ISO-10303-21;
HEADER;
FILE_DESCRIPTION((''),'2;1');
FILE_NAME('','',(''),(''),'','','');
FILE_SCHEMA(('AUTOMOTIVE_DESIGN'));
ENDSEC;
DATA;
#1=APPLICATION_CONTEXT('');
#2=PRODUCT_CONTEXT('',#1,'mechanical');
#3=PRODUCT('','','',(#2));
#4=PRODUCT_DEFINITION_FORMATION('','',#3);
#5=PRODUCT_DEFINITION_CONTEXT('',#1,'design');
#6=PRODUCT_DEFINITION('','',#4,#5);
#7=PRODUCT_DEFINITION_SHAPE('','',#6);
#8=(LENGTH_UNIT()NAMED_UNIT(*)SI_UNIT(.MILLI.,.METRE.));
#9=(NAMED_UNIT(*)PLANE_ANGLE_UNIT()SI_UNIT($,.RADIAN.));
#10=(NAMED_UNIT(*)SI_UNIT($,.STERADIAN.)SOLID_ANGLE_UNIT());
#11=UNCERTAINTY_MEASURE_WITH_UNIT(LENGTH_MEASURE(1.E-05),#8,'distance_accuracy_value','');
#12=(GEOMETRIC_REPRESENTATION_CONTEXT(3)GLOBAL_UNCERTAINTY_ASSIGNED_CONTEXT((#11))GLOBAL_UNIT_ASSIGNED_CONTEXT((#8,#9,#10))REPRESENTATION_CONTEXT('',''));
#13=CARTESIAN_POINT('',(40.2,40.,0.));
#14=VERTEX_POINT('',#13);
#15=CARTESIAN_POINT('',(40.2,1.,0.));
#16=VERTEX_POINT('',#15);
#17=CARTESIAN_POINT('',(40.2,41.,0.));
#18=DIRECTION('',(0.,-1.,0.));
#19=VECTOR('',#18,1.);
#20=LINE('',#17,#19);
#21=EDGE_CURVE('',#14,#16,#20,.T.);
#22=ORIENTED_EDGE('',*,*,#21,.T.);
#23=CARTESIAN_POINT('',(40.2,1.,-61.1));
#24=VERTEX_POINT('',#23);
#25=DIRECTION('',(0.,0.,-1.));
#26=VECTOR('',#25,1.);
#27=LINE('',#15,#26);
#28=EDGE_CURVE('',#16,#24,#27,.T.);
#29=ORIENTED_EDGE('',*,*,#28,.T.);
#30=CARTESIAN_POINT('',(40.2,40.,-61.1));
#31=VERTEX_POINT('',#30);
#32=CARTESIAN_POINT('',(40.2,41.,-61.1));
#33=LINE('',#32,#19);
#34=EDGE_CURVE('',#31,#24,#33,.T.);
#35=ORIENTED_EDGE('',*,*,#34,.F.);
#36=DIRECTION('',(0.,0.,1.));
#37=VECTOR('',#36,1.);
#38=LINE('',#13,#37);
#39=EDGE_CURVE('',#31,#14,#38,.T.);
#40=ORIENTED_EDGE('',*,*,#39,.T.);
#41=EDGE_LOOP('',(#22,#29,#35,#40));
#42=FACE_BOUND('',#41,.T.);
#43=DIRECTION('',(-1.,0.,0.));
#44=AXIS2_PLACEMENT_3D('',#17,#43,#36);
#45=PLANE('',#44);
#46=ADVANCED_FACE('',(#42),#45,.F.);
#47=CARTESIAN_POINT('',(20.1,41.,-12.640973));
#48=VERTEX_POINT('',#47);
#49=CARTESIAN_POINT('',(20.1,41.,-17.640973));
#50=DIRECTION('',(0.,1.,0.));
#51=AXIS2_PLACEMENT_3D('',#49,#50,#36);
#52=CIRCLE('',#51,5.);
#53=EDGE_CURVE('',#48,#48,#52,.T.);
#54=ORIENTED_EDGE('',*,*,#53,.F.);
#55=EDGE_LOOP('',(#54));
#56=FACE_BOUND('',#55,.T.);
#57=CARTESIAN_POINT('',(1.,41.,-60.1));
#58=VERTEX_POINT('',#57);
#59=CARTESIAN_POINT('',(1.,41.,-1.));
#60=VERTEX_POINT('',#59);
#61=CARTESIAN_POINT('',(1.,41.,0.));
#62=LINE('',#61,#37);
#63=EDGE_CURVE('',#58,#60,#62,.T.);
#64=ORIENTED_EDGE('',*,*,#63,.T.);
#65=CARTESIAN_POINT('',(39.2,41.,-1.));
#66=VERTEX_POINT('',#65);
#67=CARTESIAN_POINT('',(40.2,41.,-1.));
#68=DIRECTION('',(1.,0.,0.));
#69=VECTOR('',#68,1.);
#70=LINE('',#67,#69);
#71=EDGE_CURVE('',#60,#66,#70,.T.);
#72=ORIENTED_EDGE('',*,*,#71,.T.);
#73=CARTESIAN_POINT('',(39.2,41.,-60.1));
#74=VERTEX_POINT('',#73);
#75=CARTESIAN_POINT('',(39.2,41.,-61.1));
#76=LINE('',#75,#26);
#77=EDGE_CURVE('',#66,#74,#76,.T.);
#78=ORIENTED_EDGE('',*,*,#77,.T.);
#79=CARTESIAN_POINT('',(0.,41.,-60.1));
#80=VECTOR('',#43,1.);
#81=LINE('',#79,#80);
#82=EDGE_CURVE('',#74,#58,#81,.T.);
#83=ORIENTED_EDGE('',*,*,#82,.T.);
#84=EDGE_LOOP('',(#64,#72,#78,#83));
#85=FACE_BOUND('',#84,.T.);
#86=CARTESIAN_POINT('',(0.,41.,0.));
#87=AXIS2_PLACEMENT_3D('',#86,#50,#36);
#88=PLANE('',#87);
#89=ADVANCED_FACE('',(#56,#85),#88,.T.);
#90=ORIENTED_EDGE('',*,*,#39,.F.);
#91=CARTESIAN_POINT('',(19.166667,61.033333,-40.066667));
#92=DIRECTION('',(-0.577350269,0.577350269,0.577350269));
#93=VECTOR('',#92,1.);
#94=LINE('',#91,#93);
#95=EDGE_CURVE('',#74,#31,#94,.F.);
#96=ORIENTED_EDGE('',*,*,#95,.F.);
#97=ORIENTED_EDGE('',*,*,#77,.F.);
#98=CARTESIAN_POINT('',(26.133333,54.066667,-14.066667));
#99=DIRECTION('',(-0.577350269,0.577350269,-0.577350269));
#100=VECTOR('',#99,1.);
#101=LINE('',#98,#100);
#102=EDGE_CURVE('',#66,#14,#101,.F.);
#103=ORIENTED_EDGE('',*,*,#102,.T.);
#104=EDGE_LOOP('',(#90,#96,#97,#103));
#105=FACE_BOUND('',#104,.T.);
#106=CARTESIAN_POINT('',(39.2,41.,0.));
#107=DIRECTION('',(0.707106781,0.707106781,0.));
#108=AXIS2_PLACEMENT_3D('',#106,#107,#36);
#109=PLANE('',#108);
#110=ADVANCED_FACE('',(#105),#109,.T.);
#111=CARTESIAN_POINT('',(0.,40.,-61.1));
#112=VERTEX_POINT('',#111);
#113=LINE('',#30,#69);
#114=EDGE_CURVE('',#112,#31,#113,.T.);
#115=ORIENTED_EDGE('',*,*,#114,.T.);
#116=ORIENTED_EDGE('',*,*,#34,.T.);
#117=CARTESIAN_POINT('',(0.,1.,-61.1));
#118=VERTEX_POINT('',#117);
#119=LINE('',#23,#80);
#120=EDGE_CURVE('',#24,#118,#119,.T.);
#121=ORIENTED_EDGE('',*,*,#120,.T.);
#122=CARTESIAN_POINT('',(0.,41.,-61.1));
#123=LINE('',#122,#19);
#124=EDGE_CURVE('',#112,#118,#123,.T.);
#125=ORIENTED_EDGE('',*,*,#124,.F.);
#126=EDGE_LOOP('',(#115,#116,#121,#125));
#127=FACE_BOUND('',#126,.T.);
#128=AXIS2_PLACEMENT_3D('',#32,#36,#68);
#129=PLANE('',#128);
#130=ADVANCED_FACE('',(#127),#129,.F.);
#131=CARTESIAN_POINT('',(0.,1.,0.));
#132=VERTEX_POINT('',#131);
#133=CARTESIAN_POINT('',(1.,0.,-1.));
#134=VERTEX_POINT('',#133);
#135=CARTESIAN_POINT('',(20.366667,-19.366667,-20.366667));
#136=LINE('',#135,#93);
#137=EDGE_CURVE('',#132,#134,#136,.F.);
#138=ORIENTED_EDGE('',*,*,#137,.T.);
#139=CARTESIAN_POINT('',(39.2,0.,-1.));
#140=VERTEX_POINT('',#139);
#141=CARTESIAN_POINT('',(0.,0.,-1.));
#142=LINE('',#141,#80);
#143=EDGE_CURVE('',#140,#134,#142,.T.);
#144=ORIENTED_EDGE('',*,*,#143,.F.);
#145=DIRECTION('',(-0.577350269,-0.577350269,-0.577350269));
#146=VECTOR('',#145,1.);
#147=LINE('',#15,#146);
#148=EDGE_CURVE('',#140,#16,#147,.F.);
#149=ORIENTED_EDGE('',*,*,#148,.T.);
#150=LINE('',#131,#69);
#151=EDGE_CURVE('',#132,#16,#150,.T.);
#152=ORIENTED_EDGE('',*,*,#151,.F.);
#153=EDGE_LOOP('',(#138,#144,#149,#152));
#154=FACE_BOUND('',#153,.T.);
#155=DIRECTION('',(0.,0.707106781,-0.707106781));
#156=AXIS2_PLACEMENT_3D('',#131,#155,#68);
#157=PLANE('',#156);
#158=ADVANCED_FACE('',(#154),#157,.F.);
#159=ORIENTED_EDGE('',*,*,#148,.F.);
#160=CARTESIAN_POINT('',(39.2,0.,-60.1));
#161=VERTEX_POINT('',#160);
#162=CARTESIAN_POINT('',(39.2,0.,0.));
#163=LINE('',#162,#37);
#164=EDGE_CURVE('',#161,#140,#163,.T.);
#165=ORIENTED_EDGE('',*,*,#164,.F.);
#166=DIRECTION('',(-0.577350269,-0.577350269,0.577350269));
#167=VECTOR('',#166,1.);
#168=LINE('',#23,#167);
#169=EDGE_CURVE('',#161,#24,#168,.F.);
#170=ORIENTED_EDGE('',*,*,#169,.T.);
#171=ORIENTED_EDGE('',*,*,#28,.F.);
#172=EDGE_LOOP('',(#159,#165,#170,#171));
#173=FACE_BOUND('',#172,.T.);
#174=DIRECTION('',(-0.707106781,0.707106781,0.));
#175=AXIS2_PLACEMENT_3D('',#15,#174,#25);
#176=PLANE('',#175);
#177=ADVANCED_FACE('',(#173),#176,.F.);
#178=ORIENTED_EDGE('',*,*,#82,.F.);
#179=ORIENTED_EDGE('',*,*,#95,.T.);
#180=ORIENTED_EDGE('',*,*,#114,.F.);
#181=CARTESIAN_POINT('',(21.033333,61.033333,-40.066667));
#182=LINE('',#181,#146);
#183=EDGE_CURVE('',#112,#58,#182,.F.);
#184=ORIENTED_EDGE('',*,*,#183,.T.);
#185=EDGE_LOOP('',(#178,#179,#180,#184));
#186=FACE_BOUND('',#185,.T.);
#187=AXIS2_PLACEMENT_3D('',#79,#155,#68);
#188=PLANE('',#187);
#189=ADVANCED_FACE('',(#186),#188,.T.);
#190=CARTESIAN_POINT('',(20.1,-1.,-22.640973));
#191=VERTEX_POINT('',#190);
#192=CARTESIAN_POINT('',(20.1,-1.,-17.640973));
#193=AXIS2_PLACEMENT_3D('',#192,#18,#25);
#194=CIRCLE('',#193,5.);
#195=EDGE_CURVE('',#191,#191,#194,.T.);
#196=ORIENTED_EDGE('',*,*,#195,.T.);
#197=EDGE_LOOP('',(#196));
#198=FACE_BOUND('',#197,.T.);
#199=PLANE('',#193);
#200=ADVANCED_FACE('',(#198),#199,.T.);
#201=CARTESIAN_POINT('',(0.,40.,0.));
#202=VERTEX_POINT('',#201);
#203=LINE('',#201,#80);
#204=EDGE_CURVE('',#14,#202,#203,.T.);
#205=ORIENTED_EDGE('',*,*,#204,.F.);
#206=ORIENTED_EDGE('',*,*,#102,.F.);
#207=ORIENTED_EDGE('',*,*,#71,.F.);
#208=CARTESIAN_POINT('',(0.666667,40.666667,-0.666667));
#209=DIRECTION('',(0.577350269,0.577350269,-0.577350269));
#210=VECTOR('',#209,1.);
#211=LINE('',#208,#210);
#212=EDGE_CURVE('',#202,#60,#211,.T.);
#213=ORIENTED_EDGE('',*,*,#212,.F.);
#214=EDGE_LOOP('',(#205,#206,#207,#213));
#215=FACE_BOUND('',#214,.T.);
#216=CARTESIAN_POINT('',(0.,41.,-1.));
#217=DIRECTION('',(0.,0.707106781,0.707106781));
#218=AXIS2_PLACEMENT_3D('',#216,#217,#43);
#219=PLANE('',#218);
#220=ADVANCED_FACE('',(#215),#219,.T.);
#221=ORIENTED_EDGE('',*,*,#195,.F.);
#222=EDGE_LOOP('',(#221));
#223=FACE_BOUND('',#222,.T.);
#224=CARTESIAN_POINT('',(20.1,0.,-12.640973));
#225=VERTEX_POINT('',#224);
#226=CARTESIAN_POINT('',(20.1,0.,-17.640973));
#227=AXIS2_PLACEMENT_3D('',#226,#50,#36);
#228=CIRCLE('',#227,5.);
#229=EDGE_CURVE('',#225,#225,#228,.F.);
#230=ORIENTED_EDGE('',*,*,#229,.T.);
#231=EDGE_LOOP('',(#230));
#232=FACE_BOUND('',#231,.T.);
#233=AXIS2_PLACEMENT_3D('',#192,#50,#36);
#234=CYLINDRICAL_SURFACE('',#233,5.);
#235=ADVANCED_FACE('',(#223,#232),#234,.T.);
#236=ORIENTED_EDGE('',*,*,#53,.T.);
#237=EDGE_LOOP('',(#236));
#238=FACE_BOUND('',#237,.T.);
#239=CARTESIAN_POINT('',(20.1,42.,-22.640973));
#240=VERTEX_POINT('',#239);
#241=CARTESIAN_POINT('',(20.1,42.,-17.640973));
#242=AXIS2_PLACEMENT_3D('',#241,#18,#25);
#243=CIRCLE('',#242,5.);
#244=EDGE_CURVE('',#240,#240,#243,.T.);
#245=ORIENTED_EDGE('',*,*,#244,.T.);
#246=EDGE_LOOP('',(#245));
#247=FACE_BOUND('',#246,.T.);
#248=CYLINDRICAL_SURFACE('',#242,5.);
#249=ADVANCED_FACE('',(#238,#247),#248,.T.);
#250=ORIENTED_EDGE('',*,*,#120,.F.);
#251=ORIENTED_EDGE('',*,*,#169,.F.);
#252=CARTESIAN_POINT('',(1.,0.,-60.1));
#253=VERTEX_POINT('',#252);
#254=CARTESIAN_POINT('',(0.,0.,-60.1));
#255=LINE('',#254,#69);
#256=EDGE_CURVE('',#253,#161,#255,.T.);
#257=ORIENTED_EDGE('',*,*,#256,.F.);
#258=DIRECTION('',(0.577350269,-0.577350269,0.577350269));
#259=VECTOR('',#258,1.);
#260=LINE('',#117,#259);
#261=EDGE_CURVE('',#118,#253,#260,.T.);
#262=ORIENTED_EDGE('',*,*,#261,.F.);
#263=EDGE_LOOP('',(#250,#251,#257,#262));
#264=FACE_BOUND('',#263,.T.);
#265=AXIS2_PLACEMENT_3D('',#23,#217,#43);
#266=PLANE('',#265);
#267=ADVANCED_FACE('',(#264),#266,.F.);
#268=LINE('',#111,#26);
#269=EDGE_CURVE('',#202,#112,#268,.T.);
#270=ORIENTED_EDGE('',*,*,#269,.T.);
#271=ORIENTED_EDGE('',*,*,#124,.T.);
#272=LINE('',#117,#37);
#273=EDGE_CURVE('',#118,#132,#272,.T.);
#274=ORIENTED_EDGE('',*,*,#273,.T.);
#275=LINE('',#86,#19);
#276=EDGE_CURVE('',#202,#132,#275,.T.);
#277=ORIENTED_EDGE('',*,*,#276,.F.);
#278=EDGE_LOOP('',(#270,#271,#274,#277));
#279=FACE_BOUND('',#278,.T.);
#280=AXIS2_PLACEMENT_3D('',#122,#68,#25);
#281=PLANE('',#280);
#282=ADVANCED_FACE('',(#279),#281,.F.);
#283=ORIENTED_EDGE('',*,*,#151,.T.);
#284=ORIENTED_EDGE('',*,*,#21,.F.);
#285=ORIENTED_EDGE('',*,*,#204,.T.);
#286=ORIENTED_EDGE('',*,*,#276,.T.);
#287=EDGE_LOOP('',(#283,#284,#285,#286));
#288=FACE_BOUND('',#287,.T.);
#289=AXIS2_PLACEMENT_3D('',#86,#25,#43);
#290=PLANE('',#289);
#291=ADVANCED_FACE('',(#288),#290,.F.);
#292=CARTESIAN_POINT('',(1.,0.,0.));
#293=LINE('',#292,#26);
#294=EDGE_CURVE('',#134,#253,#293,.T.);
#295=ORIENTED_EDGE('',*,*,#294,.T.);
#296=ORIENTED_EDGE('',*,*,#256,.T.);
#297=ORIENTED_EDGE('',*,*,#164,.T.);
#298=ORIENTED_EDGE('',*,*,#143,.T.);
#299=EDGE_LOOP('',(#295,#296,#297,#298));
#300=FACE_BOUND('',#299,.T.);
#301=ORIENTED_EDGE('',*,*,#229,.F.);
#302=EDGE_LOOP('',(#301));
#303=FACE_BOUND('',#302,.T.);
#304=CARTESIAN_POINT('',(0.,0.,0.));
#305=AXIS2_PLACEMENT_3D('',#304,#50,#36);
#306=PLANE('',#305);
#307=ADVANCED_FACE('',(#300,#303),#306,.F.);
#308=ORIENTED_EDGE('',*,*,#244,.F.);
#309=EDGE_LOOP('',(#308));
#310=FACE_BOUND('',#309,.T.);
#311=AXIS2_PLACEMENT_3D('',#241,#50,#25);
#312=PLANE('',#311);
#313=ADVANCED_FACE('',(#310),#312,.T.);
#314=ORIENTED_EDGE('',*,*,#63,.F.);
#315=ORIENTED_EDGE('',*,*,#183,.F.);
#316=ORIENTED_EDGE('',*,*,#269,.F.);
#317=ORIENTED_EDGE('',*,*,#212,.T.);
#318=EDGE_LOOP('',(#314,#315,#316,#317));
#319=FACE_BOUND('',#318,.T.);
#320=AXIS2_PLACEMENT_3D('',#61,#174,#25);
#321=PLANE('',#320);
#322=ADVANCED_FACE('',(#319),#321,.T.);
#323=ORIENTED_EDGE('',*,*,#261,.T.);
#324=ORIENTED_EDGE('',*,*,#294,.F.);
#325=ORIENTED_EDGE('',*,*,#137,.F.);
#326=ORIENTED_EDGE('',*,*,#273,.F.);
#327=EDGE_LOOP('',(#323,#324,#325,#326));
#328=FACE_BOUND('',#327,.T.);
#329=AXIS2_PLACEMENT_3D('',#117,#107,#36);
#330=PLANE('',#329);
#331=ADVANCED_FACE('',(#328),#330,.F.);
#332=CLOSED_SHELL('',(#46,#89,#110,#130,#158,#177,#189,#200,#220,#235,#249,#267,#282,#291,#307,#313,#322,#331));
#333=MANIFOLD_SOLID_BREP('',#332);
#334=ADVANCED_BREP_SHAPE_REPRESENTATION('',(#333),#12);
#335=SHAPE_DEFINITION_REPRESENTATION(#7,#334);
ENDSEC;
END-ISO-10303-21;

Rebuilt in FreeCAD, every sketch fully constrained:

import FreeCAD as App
import Part
import Sketcher

V = App.Vector
Q = App.Units.Quantity


def edges_at(feature, points):
    """Names of the edges that pass closest to the given points."""
    edges = feature.Shape.Edges
    near = lambda p: min(range(len(edges)), key=lambda i: edges[i].distToShape(Part.Vertex(*p))[0])
    return sorted({f"Edge{near(p) + 1}" for p in points})


def add_polygon(sketch, points):
    """Adds a closed chain of lines whose ends are joined by coincident constraints."""
    first, n = sketch.GeometryCount, len(points)
    for a, b in zip(points, points[1:] + points[:1]):
        sketch.addGeometry(Part.LineSegment(App.Vector(*a, 0), App.Vector(*b, 0)), False)
    for i in range(n):
        sketch.addConstraint(Sketcher.Constraint("Coincident", first + i, 2, first + (i + 1) % n, 1))

doc = App.newDocument("Part")
body = doc.addObject("PartDesign::Body", "Body")

# Sketch on XZ plane
sketch1 = body.newObject("Sketcher::SketchObject", "Sketch")
sketch1.AttachmentSupport = (doc.getObject("XZ_Plane"), [""])
sketch1.MapMode = "FlatFace"
add_polygon(sketch1, [(0, -61), (0, 0), (40, 0), (40, -61)])  # lines 0-3
sketch1.addConstraint(Sketcher.Constraint("Vertical", 0))
sketch1.addConstraint(Sketcher.Constraint("Horizontal", 1))
sketch1.addConstraint(Sketcher.Constraint("Vertical", 2))
sketch1.addConstraint(Sketcher.Constraint("Horizontal", 3))
sketch1.addConstraint(Sketcher.Constraint("Coincident", 0, 2, -1, 1))
sketch1.addConstraint(Sketcher.Constraint("DistanceX", 1, 1, 1, 2, Q("40.2 mm")))
sketch1.addConstraint(Sketcher.Constraint("DistanceY", 0, 1, 0, 2, Q("61.1 mm")))
pad1 = body.newObject("PartDesign::Pad", "Pad")
pad1.Profile = sketch1
pad1.Length = 41
pad1.Reversed = True
doc.recompute()

chamfer = body.newObject("PartDesign::Chamfer", "Chamfer")
chamfer.Base = (pad1, edges_at(pad1, [
    (40.2, 41, -30.55),
    (20.1, 41, -61.1),
    (0, 41, -30.55),
    (20.1, 41, 0),
]))
chamfer.Size = 1
doc.recompute()

chamfer2 = body.newObject("PartDesign::Chamfer", "Chamfer001")
chamfer2.Base = (chamfer, edges_at(chamfer, [
    (20.1, 0, -61.1),
    (40.2, 0, -30.55),
    (20.1, 0, 0),
    (0, 0, -30.55),
]))
chamfer2.Size = 1

# Sketch on XZ plane
sketch2 = body.newObject("Sketcher::SketchObject", "Sketch001")
sketch2.AttachmentSupport = (doc.getObject("XZ_Plane"), [""])
sketch2.MapMode = "FlatFace"
sketch2.addGeometry(Part.Circle(V(20, -18, 0), V(0, 0, 1), 5), False)
sketch2.addConstraint(Sketcher.Constraint("Diameter", 0, Q("10 mm")))
sketch2.addConstraint(Sketcher.Constraint("DistanceX", -1, 1, 0, 3, Q("20.1 mm")))
sketch2.addConstraint(Sketcher.Constraint("DistanceY", 0, 3, -1, 1, Q("17.640973 mm")))
pad2 = body.newObject("PartDesign::Pad", "Pad001")
pad2.Profile = sketch2
pad2.Length = 1
doc.recompute()

datumplane = body.newObject("PartDesign::Plane", "DatumPlane")
datumplane.AttachmentSupport = (doc.getObject("XZ_Plane"), [""])
datumplane.MapMode = "FlatFace"
datumplane.AttachmentOffset = App.Placement(V(0, 0, -20.5), App.Rotation())
mirrored = body.newObject("PartDesign::Mirrored", "Mirrored")
mirrored.Originals = [pad2]
mirrored.MirrorPlane = (datumplane, [""])
body.Tip = mirrored

doc.recompute()
